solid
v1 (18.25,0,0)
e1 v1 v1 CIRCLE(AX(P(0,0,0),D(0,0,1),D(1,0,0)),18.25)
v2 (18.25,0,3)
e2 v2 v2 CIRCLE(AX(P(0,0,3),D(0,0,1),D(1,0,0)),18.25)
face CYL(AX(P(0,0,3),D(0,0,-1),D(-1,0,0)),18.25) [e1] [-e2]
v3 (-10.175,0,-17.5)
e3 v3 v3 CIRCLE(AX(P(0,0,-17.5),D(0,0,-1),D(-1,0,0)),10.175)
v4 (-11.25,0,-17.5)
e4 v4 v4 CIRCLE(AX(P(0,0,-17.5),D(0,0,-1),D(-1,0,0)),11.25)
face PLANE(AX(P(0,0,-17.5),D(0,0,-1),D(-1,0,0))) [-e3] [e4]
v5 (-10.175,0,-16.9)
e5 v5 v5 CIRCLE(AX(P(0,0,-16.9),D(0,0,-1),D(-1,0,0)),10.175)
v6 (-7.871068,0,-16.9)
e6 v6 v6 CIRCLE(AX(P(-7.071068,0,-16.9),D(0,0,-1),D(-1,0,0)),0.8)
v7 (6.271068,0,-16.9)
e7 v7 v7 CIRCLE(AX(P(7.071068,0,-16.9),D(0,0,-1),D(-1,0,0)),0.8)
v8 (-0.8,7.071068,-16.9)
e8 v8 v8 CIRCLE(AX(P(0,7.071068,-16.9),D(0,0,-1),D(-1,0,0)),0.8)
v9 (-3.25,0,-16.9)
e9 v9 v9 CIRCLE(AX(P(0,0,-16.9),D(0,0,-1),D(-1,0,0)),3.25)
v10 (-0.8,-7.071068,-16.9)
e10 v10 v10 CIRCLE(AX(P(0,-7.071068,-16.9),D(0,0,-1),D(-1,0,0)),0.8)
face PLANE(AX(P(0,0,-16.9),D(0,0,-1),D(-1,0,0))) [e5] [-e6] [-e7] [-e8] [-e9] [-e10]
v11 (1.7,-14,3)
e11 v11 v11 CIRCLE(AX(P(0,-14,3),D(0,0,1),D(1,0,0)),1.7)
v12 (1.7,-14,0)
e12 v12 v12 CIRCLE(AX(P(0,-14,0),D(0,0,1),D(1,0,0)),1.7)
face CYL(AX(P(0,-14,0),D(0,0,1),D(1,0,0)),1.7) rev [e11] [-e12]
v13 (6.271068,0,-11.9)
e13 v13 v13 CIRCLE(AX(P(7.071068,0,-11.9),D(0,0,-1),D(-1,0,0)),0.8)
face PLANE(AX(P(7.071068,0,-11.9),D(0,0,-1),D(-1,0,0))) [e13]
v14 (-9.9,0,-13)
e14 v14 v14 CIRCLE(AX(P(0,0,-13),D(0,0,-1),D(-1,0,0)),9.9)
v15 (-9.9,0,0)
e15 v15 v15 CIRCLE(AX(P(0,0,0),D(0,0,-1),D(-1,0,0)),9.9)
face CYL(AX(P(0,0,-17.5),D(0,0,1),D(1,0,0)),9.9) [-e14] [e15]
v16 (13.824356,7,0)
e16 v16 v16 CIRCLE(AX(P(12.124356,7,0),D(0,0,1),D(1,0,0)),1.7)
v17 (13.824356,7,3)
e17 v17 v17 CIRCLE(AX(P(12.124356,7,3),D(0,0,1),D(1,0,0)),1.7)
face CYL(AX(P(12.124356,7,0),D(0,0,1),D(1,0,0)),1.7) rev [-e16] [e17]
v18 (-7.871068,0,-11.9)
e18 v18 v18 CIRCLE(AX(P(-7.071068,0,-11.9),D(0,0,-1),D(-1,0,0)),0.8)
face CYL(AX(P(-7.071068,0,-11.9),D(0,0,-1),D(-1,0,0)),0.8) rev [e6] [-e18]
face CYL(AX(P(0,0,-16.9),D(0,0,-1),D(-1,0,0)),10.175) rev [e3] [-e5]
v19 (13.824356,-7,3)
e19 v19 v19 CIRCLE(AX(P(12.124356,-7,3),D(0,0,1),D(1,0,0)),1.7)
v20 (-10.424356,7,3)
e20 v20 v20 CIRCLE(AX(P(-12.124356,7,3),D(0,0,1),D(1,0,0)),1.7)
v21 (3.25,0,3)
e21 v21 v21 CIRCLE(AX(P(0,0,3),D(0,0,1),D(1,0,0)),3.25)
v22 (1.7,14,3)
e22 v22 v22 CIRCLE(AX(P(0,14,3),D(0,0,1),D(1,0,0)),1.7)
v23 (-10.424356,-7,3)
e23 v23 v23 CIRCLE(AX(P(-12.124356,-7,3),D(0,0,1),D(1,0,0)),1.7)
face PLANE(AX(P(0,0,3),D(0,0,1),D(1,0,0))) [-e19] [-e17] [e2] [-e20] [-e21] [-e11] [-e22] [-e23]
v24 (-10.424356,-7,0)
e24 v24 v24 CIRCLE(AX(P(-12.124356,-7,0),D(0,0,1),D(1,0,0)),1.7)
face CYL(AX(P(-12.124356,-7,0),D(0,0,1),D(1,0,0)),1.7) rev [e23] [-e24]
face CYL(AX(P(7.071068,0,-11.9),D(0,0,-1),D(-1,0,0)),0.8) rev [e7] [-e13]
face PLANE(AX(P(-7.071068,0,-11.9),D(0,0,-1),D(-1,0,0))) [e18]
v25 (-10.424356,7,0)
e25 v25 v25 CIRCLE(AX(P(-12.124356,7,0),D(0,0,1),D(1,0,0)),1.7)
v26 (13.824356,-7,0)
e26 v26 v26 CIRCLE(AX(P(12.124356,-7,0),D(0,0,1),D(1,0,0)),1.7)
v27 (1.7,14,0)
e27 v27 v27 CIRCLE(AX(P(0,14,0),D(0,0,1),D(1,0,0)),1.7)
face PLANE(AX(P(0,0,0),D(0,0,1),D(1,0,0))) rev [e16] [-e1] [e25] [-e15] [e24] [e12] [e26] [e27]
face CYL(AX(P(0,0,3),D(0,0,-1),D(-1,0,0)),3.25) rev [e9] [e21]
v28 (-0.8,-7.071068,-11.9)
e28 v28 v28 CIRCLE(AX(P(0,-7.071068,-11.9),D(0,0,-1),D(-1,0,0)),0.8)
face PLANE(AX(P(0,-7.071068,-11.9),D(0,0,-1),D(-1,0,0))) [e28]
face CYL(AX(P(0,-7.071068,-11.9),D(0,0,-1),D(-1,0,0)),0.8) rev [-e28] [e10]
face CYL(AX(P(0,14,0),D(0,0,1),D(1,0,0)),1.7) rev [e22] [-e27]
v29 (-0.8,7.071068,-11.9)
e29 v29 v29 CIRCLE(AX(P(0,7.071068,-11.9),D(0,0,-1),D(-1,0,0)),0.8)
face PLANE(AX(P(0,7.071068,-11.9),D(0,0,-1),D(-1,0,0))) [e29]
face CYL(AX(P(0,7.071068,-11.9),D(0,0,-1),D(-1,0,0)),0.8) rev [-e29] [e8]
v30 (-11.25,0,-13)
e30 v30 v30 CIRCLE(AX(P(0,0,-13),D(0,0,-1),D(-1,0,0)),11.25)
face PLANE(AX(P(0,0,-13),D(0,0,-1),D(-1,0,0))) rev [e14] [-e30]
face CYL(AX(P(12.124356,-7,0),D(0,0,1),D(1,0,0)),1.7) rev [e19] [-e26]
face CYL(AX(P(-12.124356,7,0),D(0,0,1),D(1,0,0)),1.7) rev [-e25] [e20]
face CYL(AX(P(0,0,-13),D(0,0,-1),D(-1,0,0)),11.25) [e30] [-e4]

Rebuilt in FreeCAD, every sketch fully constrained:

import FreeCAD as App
import Part
import Sketcher

doc = App.newDocument("Part")
body = doc.addObject("PartDesign::Body", "Body")

# Sketch on XY plane
sketch1 = body.newObject("Sketcher::SketchObject", "Sketch")
sketch1.AttachmentSupport = (doc.getObject("XY_Plane"), [""])
sketch1.MapMode = "FlatFace"
sketch1.addGeometry([
    Part.Circle(App.Vector(0, 0, 0), App.Vector(0, 0, 1), 18.2),
    Part.Circle(App.Vector(0, 0, 0), App.Vector(0, 0, 1), 3.2),
], False)
sketch1.addConstraint([
    Sketcher.Constraint("Coincident", 0, 3, -1, 1),
    Sketcher.Constraint("Coincident", 1, 3, -1, 1),
    Sketcher.Constraint("Diameter", 0, 36.5),
    Sketcher.Constraint("Diameter", 1, 6.5),
])
pad1 = body.newObject("PartDesign::Pad", "Pad")
pad1.Profile = sketch1
pad1.Length = 3

# Sketch on XY plane
sketch2 = body.newObject("Sketcher::SketchObject", "Sketch001")
sketch2.AttachmentSupport = (doc.getObject("XY_Plane"), [""])
sketch2.MapMode = "FlatFace"
sketch2.AttachmentOffset = App.Placement(App.Vector(0, 0, -17.5), App.Rotation())
sketch2.addGeometry([
    Part.Circle(App.Vector(0, 0, 0), App.Vector(0, 0, 1), 9.9),
    Part.Circle(App.Vector(0, 0, 0), App.Vector(0, 0, 1), 3.2),
], False)
sketch2.addConstraint([
    Sketcher.Constraint("Coincident", 0, 3, -1, 1),
    Sketcher.Constraint("Coincident", 1, 3, -1, 1),
    Sketcher.Constraint("Diameter", 0, 19.8),
    Sketcher.Constraint("Diameter", 1, 6.5),
])
pad2 = body.newObject("PartDesign::Pad", "Pad001")
pad2.Profile = sketch2
pad2.Length = 17.5

# Sketch on XY plane
sketch3 = body.newObject("Sketcher::SketchObject", "Sketch002")
sketch3.AttachmentSupport = (doc.getObject("XY_Plane"), [""])
sketch3.MapMode = "FlatFace"
sketch3.AttachmentOffset = App.Placement(App.Vector(0, 0, -17.5), App.Rotation())
sketch3.addGeometry([
    Part.Circle(App.Vector(0, 0, 0), App.Vector(0, 0, 1), 11.2),
    Part.Circle(App.Vector(0, 0, 0), App.Vector(0, 0, 1), 3.2),
], False)
sketch3.addConstraint([
    Sketcher.Constraint("Coincident", 0, 3, -1, 1),
    Sketcher.Constraint("Coincident", 1, 3, -1, 1),
    Sketcher.Constraint("Diameter", 0, 22.5),
    Sketcher.Constraint("Diameter", 1, 6.5),
])
pad3 = body.newObject("PartDesign::Pad", "Pad002")
pad3.Profile = sketch3
pad3.Length = 4.5

# Sketch on XY plane
sketch4 = body.newObject("Sketcher::SketchObject", "Sketch003")
sketch4.AttachmentSupport = (doc.getObject("XY_Plane"), [""])
sketch4.MapMode = "FlatFace"
sketch4.AttachmentOffset = App.Placement(App.Vector(0, 0, 3), App.Rotation())
sketch4.addGeometry([
    Part.Circle(App.Vector(12.1, 7, 0), App.Vector(0, 0, 1), 1.7),  # 0
    Part.Circle(App.Vector(0, 14, 0), App.Vector(0, 0, 1), 1.7),  # 1
    Part.Circle(App.Vector(-12.1, 7, 0), App.Vector(0, 0, 1), 1.7),  # 2
    Part.Circle(App.Vector(-12.1, -7, 0), App.Vector(0, 0, 1), 1.7),  # 3
    Part.Circle(App.Vector(0, -14, 0), App.Vector(0, 0, 1), 1.7),  # 4
    Part.Circle(App.Vector(12.1, -7, 0), App.Vector(0, 0, 1), 1.7),  # 5
], False)
sketch4.addConstraint([
    Sketcher.Constraint("Equal", 0, 1),
    Sketcher.Constraint("Equal", 1, 2),
    Sketcher.Constraint("Equal", 2, 3),
    Sketcher.Constraint("Equal", 3, 4),
    Sketcher.Constraint("Equal", 4, 5),
    Sketcher.Constraint("Symmetric", 0, 3, 3, 3, -1, 1),
    Sketcher.Constraint("Symmetric", 1, 3, 4, 3, -1, 1),
    Sketcher.Constraint("Symmetric", 2, 3, 5, 3, -1, 1),
    Sketcher.Constraint("Symmetric", 0, 3, 2, 3, -2),
    Sketcher.Constraint("PointOnObject", 1, 3, -2),
    Sketcher.Constraint("Diameter", 0, 3.4),
    Sketcher.Constraint("DistanceY", -1, 1, 0, 3, 7.0),
    Sketcher.Constraint("DistanceY", -1, 1, 1, 3, 14.0),
    Sketcher.Constraint("DistanceX", 2, 3, 0, 3, 24.248711),
])
pocket1 = body.newObject("PartDesign::Pocket", "Pocket")
pocket1.Profile = sketch4
pocket1.Length = 3

# Sketch on XY plane
sketch5 = body.newObject("Sketcher::SketchObject", "Sketch004")
sketch5.AttachmentSupport = (doc.getObject("XY_Plane"), [""])
sketch5.MapMode = "FlatFace"
sketch5.AttachmentOffset = App.Placement(App.Vector(0, 0, -17.5), App.Rotation())
sketch5.addGeometry(Part.Circle(App.Vector(0, 0, 0), App.Vector(0, 0, 1), 10), False)
sketch5.addConstraint([
    Sketcher.Constraint("Coincident", 0, 3, -1, 1),
    Sketcher.Constraint("Diameter", 0, 20.35),
])
pocket2 = body.newObject("PartDesign::Pocket", "Pocket001")
pocket2.Profile = sketch5
pocket2.Length = 0.6
pocket2.Reversed = True

# Sketch on XY plane
sketch6 = body.newObject("Sketcher::SketchObject", "Sketch005")
sketch6.AttachmentSupport = (doc.getObject("XY_Plane"), [""])
sketch6.MapMode = "FlatFace"
sketch6.AttachmentOffset = App.Placement(App.Vector(0, 0, -16.9), App.Rotation())
sketch6.addGeometry([
    Part.Circle(App.Vector(7.1, 0, 0), App.Vector(0, 0, 1), 0.8),
    Part.Circle(App.Vector(0, 7.1, 0), App.Vector(0, 0, 1), 0.8),
    Part.Circle(App.Vector(-7.1, 0, 0), App.Vector(0, 0, 1), 0.8),
    Part.Circle(App.Vector(0, -7.1, 0), App.Vector(0, 0, 1), 0.8),
], False)
sketch6.addConstraint([
    Sketcher.Constraint("Equal", 0, 1),
    Sketcher.Constraint("Equal", 1, 2),
    Sketcher.Constraint("Equal", 2, 3),
    Sketcher.Constraint("Symmetric", 0, 3, 2, 3, -1, 1),
    Sketcher.Constraint("Symmetric", 1, 3, 3, 3, -1, 1),
    Sketcher.Constraint("PointOnObject", 0, 3, -1),
    Sketcher.Constraint("PointOnObject", 1, 3, -2),
    Sketcher.Constraint("Diameter", 0, 1.6),
    Sketcher.Constraint("DistanceX", -1, 1, 0, 3, 7.071068),
    Sketcher.Constraint("DistanceY", -1, 1, 1, 3, 7.071068),
])
pocket3 = body.newObject("PartDesign::Pocket", "Pocket002")
pocket3.Profile = sketch6
pocket3.Length = 5
pocket3.Reversed = True

doc.recompute()
